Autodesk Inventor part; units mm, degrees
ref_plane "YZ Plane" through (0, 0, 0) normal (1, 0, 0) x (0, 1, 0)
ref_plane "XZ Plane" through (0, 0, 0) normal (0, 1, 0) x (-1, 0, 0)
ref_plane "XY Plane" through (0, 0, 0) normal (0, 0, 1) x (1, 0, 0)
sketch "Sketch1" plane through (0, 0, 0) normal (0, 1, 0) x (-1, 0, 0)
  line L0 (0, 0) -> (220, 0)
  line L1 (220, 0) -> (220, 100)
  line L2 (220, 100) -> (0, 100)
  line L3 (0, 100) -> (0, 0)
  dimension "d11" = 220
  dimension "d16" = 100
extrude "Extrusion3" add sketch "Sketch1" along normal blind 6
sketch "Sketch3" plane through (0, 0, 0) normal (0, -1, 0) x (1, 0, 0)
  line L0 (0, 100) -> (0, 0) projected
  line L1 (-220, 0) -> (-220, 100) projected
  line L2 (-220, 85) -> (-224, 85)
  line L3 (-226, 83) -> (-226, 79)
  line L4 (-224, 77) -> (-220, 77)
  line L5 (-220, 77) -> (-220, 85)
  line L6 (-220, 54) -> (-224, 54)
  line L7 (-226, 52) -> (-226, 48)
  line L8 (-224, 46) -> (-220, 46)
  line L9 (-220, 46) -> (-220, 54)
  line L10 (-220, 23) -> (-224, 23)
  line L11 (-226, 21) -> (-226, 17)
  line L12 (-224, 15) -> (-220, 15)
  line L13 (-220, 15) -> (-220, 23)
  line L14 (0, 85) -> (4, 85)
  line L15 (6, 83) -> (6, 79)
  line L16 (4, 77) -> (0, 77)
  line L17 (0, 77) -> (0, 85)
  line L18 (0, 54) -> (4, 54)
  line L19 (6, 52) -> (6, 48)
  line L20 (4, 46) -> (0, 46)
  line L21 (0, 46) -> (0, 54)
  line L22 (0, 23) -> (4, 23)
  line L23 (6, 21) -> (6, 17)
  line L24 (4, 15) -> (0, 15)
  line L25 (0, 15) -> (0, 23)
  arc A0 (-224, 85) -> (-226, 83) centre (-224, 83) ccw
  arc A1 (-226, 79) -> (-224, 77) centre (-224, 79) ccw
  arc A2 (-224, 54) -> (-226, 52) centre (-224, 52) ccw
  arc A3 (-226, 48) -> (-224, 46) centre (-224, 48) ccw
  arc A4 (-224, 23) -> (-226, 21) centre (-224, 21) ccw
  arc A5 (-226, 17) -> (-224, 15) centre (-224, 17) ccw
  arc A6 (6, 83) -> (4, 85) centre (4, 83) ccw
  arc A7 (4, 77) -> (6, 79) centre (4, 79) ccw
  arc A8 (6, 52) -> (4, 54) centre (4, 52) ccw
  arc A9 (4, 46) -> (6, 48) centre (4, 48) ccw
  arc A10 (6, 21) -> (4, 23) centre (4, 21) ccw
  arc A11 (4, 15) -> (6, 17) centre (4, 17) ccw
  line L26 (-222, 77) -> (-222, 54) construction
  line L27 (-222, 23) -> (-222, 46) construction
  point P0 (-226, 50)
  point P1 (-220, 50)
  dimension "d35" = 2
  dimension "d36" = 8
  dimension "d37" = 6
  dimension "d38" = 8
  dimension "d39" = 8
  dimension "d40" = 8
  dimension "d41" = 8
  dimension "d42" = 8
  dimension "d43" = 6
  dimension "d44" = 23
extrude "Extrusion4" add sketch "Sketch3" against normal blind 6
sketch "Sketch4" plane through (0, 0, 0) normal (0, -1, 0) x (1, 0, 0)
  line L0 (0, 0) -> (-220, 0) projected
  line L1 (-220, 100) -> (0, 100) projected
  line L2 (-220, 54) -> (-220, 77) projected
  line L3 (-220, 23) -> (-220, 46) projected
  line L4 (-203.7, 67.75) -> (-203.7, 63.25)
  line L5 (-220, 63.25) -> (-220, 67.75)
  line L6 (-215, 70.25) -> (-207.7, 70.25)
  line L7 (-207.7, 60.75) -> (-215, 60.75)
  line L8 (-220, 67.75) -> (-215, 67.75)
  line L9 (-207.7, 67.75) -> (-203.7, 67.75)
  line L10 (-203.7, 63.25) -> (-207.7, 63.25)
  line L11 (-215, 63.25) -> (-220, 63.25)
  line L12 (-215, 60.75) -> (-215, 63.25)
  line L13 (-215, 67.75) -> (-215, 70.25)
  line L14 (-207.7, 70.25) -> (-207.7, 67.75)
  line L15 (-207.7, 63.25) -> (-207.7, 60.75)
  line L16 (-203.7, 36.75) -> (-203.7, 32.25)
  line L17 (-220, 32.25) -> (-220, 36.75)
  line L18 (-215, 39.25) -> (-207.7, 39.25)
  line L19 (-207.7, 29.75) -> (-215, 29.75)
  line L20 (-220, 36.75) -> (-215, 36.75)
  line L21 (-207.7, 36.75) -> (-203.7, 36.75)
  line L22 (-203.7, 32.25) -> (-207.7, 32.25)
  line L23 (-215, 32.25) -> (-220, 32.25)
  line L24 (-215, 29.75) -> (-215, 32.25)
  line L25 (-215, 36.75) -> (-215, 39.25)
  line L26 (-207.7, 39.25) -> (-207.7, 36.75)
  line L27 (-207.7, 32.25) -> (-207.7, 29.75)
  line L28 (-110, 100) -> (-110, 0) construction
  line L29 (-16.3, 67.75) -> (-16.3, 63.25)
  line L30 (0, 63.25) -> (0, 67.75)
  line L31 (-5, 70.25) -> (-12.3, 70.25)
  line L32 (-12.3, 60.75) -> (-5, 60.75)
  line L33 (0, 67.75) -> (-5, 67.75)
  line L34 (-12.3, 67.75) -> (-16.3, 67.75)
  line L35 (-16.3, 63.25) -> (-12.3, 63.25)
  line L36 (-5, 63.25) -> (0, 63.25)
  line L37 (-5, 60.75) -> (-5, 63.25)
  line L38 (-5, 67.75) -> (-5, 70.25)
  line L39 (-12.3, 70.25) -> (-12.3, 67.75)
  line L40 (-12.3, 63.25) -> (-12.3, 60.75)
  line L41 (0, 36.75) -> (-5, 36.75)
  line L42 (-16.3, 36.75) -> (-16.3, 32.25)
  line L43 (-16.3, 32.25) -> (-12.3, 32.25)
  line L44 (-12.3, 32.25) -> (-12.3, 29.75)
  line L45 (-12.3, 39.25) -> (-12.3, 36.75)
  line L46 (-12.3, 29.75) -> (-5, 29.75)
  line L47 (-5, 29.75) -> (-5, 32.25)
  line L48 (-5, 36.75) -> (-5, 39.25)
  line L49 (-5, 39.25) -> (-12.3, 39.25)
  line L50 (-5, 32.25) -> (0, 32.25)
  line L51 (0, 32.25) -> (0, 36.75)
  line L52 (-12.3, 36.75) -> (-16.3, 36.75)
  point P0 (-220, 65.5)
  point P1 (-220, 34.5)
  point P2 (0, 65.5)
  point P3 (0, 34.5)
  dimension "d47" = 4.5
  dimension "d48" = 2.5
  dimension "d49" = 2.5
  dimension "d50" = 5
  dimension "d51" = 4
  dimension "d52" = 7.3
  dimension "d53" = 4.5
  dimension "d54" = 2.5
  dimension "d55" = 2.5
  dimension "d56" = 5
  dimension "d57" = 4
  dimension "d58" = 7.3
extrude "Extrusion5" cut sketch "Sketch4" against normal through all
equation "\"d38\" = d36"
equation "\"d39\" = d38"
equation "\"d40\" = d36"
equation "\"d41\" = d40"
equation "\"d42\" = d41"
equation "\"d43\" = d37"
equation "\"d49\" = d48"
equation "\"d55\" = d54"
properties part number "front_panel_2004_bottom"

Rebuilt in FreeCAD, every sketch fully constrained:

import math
import FreeCAD as App
import Part
import Sketcher

V = App.Vector
Q = App.Units.Quantity


def add_polygon(sketch, points):
    """Adds a closed chain of lines whose ends are joined by coincident constraints."""
    first, n = sketch.GeometryCount, len(points)
    for a, b in zip(points, points[1:] + points[:1]):
        sketch.addGeometry(Part.LineSegment(App.Vector(*a, 0), App.Vector(*b, 0)), False)
    for i in range(n):
        sketch.addConstraint(Sketcher.Constraint("Coincident", first + i, 2, first + (i + 1) % n, 1))

doc = App.newDocument("Part")
body = doc.addObject("PartDesign::Body", "Body")

sketch1 = doc.addObject("Sketcher::SketchObject", "Sketch")
body.addObject(sketch1)
sketch1.AttachmentSupport = (doc.XZ_Plane, [""])
sketch1.MapMode = "FlatFace"
add_polygon(sketch1, [(0, 100), (0, 0), (-220, 0), (-220, 100)])
sketch1.addConstraint(Sketcher.Constraint("Vertical", 0))
sketch1.addConstraint(Sketcher.Constraint("Horizontal", 1))
sketch1.addConstraint(Sketcher.Constraint("Vertical", 2))
sketch1.addConstraint(Sketcher.Constraint("Horizontal", 3))
sketch1.addConstraint(Sketcher.Constraint("Coincident", 0, 2, -1, 1))
sketch1.addConstraint(Sketcher.Constraint("DistanceX", 1, 2, 1, 1, Q("220 mm")))
sketch1.addConstraint(Sketcher.Constraint("DistanceY", 0, 2, 0, 1, Q("100 mm")))
pad1 = doc.addObject("PartDesign::Pad", "Pad")
body.addObject(pad1)
pad1.Profile = sketch1
pad1.Length = 6
pad1.Reversed = True

sketch2 = doc.addObject("Sketcher::SketchObject", "Sketch001")
body.addObject(sketch2)
sketch2.AttachmentSupport = (doc.XZ_Plane, [""])
sketch2.MapMode = "FlatFace"
sketch2.addGeometry(Part.LineSegment(V(4, 85, 0), V(0, 85, 0)), False)
sketch2.addGeometry(Part.LineSegment(V(0, 85, 0), V(0, 77, 0)), False)
sketch2.addGeometry(Part.LineSegment(V(0, 77, 0), V(4, 77, 0)), False)
sketch2.addGeometry(Part.ArcOfCircle(Part.Circle(V(4, 79, 0), V(0, 0, 1), 2), math.radians(-90), math.radians(0)), False)
sketch2.addGeometry(Part.LineSegment(V(6, 79, 0), V(6, 83, 0)), False)
sketch2.addGeometry(Part.ArcOfCircle(Part.Circle(V(4, 83, 0), V(0, 0, 1), 2), math.radians(0), math.radians(90)), False)
sketch2.addGeometry(Part.LineSegment(V(4, 23, 0), V(0, 23, 0)), False)
sketch2.addGeometry(Part.LineSegment(V(0, 23, 0), V(0, 15, 0)), False)
sketch2.addGeometry(Part.LineSegment(V(0, 15, 0), V(4, 15, 0)), False)
sketch2.addGeometry(Part.ArcOfCircle(Part.Circle(V(4, 17, 0), V(0, 0, 1), 2), math.radians(-90), math.radians(0)), False)
sketch2.addGeometry(Part.LineSegment(V(6, 17, 0), V(6, 21, 0)), False)
sketch2.addGeometry(Part.ArcOfCircle(Part.Circle(V(4, 21, 0), V(0, 0, 1), 2), math.radians(0), math.radians(90)), False)
sketch2.addGeometry(Part.LineSegment(V(4, 54, 0), V(0, 54, 0)), False)
sketch2.addGeometry(Part.LineSegment(V(0, 54, 0), V(0, 46, 0)), False)
sketch2.addGeometry(Part.LineSegment(V(0, 46, 0), V(4, 46, 0)), False)
sketch2.addGeometry(Part.ArcOfCircle(Part.Circle(V(4, 48, 0), V(0, 0, 1), 2), math.radians(-90), math.radians(0)), False)
sketch2.addGeometry(Part.LineSegment(V(6, 48, 0), V(6, 52, 0)), False)
sketch2.addGeometry(Part.ArcOfCircle(Part.Circle(V(4, 52, 0), V(0, 0, 1), 2), math.radians(0), math.radians(90)), False)
sketch2.addGeometry(Part.LineSegment(V(-224, 15, 0), V(-220, 15, 0)), False)
sketch2.addGeometry(Part.LineSegment(V(-220, 15, 0), V(-220, 23, 0)), False)
sketch2.addGeometry(Part.LineSegment(V(-220, 23, 0), V(-224, 23, 0)), False)
sketch2.addGeometry(Part.ArcOfCircle(Part.Circle(V(-224, 21, 0), V(0, 0, 1), 2), math.radians(90), math.radians(180)), False)
sketch2.addGeometry(Part.LineSegment(V(-226, 21, 0), V(-226, 17, 0)), False)
sketch2.addGeometry(Part.ArcOfCircle(Part.Circle(V(-224, 17, 0), V(0, 0, 1), 2), math.radians(180), math.radians(270)), False)
sketch2.addGeometry(Part.LineSegment(V(-224, 77, 0), V(-220, 77, 0)), False)
sketch2.addGeometry(Part.LineSegment(V(-220, 77, 0), V(-220, 85, 0)), False)
sketch2.addGeometry(Part.LineSegment(V(-220, 85, 0), V(-224, 85, 0)), False)
sketch2.addGeometry(Part.ArcOfCircle(Part.Circle(V(-224, 83, 0), V(0, 0, 1), 2), math.radians(90), math.radians(180)), False)
sketch2.addGeometry(Part.LineSegment(V(-226, 83, 0), V(-226, 79, 0)), False)
sketch2.addGeometry(Part.ArcOfCircle(Part.Circle(V(-224, 79, 0), V(0, 0, 1), 2), math.radians(180), math.radians(270)), False)
sketch2.addGeometry(Part.LineSegment(V(-224, 46, 0), V(-220, 46, 0)), False)
sketch2.addGeometry(Part.LineSegment(V(-220, 46, 0), V(-220, 54, 0)), False)
sketch2.addGeometry(Part.LineSegment(V(-220, 54, 0), V(-224, 54, 0)), False)
sketch2.addGeometry(Part.ArcOfCircle(Part.Circle(V(-224, 52, 0), V(0, 0, 1), 2), math.radians(90), math.radians(180)), False)
sketch2.addGeometry(Part.LineSegment(V(-226, 52, 0), V(-226, 48, 0)), False)
sketch2.addGeometry(Part.ArcOfCircle(Part.Circle(V(-224, 48, 0), V(0, 0, 1), 2), math.radians(180), math.radians(270)), False)
sketch2.addConstraint(Sketcher.Constraint("Coincident", 0, 2, 1, 1))
sketch2.addConstraint(Sketcher.Constraint("Coincident", 1, 2, 2, 1))
sketch2.addConstraint(Sketcher.Constraint("Tangent", 2, 2, 3, 1))
sketch2.addConstraint(Sketcher.Constraint("Tangent", 3, 2, 4, 1))
sketch2.addConstraint(Sketcher.Constraint("Tangent", 4, 2, 5, 1))
sketch2.addConstraint(Sketcher.Constraint("Tangent", 5, 2, 0, 1))
sketch2.addConstraint(Sketcher.Constraint("Coincident", 6, 2, 7, 1))
sketch2.addConstraint(Sketcher.Constraint("Coincident", 7, 2, 8, 1))
sketch2.addConstraint(Sketcher.Constraint("Tangent", 8, 2, 9, 1))
sketch2.addConstraint(Sketcher.Constraint("Tangent", 9, 2, 10, 1))
sketch2.addConstraint(Sketcher.Constraint("Tangent", 10, 2, 11, 1))
sketch2.addConstraint(Sketcher.Constraint("Tangent", 11, 2, 6, 1))
sketch2.addConstraint(Sketcher.Constraint("Coincident", 12, 2, 13, 1))
sketch2.addConstraint(Sketcher.Constraint("Coincident", 13, 2, 14, 1))
sketch2.addConstraint(Sketcher.Constraint("Tangent", 14, 2, 15, 1))
sketch2.addConstraint(Sketcher.Constraint("Tangent", 15, 2, 16, 1))
sketch2.addConstraint(Sketcher.Constraint("Tangent", 16, 2, 17, 1))
sketch2.addConstraint(Sketcher.Constraint("Tangent", 17, 2, 12, 1))
sketch2.addConstraint(Sketcher.Constraint("Coincident", 18, 2, 19, 1))
sketch2.addConstraint(Sketcher.Constraint("Coincident", 19, 2, 20, 1))
sketch2.addConstraint(Sketcher.Constraint("Tangent", 20, 2, 21, 1))
sketch2.addConstraint(Sketcher.Constraint("Tangent", 21, 2, 22, 1))
sketch2.addConstraint(Sketcher.Constraint("Tangent", 22, 2, 23, 1))
sketch2.addConstraint(Sketcher.Constraint("Tangent", 23, 2, 18, 1))
sketch2.addConstraint(Sketcher.Constraint("Coincident", 24, 2, 25, 1))
sketch2.addConstraint(Sketcher.Constraint("Coincident", 25, 2, 26, 1))
sketch2.addConstraint(Sketcher.Constraint("Tangent", 26, 2, 27, 1))
sketch2.addConstraint(Sketcher.Constraint("Tangent", 27, 2, 28, 1))
sketch2.addConstraint(Sketcher.Constraint("Tangent", 28, 2, 29, 1))
sketch2.addConstraint(Sketcher.Constraint("Tangent", 29, 2, 24, 1))
sketch2.addConstraint(Sketcher.Constraint("Coincident", 30, 2, 31, 1))
sketch2.addConstraint(Sketcher.Constraint("Coincident", 31, 2, 32, 1))
sketch2.addConstraint(Sketcher.Constraint("Tangent", 32, 2, 33, 1))
sketch2.addConstraint(Sketcher.Constraint("Tangent", 33, 2, 34, 1))
sketch2.addConstraint(Sketcher.Constraint("Tangent", 34, 2, 35, 1))
sketch2.addConstraint(Sketcher.Constraint("Tangent", 35, 2, 30, 1))
sketch2.addConstraint(Sketcher.Constraint("Horizontal", 0))
sketch2.addConstraint(Sketcher.Constraint("Vertical", 1))
sketch2.addConstraint(Sketcher.Constraint("Horizontal", 2))
sketch2.addConstraint(Sketcher.Constraint("Vertical", 4))
sketch2.addConstraint(Sketcher.Constraint("Horizontal", 6))
sketch2.addConstraint(Sketcher.Constraint("Vertical", 7))
sketch2.addConstraint(Sketcher.Constraint("Horizontal", 8))
sketch2.addConstraint(Sketcher.Constraint("Vertical", 10))
sketch2.addConstraint(Sketcher.Constraint("Horizontal", 12))
sketch2.addConstraint(Sketcher.Constraint("Vertical", 13))
sketch2.addConstraint(Sketcher.Constraint("Horizontal", 14))
sketch2.addConstraint(Sketcher.Constraint("Vertical", 16))
sketch2.addConstraint(Sketcher.Constraint("Horizontal", 18))
sketch2.addConstraint(Sketcher.Constraint("Vertical", 19))
sketch2.addConstraint(Sketcher.Constraint("Horizontal", 20))
sketch2.addConstraint(Sketcher.Constraint("Vertical", 22))
sketch2.addConstraint(Sketcher.Constraint("Horizontal", 24))
sketch2.addConstraint(Sketcher.Constraint("Vertical", 25))
sketch2.addConstraint(Sketcher.Constraint("Horizontal", 26))
sketch2.addConstraint(Sketcher.Constraint("Vertical", 28))
sketch2.addConstraint(Sketcher.Constraint("Horizontal", 30))
sketch2.addConstraint(Sketcher.Constraint("Vertical", 31))
sketch2.addConstraint(Sketcher.Constraint("Horizontal", 32))
sketch2.addConstraint(Sketcher.Constraint("Vertical", 34))
sketch2.addConstraint(Sketcher.Constraint("Equal", 3, 5))
sketch2.addConstraint(Sketcher.Constraint("Equal", 5, 9))
sketch2.addConstraint(Sketcher.Constraint("Equal", 9, 11))
sketch2.addConstraint(Sketcher.Constraint("Equal", 11, 15))
sketch2.addConstraint(Sketcher.Constraint("Equal", 15, 17))
sketch2.addConstraint(Sketcher.Constraint("Equal", 17, 21))
sketch2.addConstraint(Sketcher.Constraint("Equal", 21, 23))
sketch2.addConstraint(Sketcher.Constraint("Equal", 23, 27))
sketch2.addConstraint(Sketcher.Constraint("Equal", 27, 29))
sketch2.addConstraint(Sketcher.Constraint("Equal", 29, 33))
sketch2.addConstraint(Sketcher.Constraint("Equal", 33, 35))
sketch2.addConstraint(Sketcher.Constraint("PointOnObject", 0, 2, -2))
sketch2.addConstraint(Sketcher.Constraint("PointOnObject", 6, 2, -2))
sketch2.addConstraint(Sketcher.Constraint("PointOnObject", 12, 2, -2))
sketch2.addConstraint(Sketcher.Constraint("Horizontal", 11, 3, 21, 3))
sketch2.addConstraint(Sketcher.Constraint("Horizontal", 9, 3, 23, 3))
sketch2.addConstraint(Sketcher.Constraint("Horizontal", 5, 3, 27, 3))
sketch2.addConstraint(Sketcher.Constraint("Horizontal", 3, 3, 29, 3))
sketch2.addConstraint(Sketcher.Constraint("Horizontal", 17, 3, 33, 3))
sketch2.addConstraint(Sketcher.Constraint("Horizontal", 15, 3, 35, 3))
sketch2.addConstraint(Sketcher.Constraint("Vertical", 5, 3, 9, 3))
sketch2.addConstraint(Sketcher.Constraint("Vertical", 11, 3, 15, 3))
sketch2.addConstraint(Sketcher.Constraint("Vertical", 23, 3, 27, 3))
sketch2.addConstraint(Sketcher.Constraint("Vertical", 29, 3, 33, 3))
sketch2.addConstraint(Sketcher.Constraint("Vertical", 19, 2, 24, 2))
sketch2.addConstraint(Sketcher.Constraint("Vertical", 25, 2, 30, 2))
sketch2.addConstraint(Sketcher.Constraint("Equal", 14, 18))
sketch2.addConstraint(Sketcher.Constraint("Equal", 32, 4))
sketch2.addConstraint(Sketcher.Constraint("Equal", 1, 7))
sketch2.addConstraint(Sketcher.Constraint("Equal", 7, 13))
sketch2.addConstraint(Sketcher.Constraint("Radius", 3, Q("2 mm")))
sketch2.addConstraint(Sketcher.Constraint("DistanceY", 1, 2, 1, 1, Q("8 mm")))
sketch2.addConstraint(Sketcher.Constraint("DistanceY", -1, 1, 6, 2, Q("23 mm")))
sketch2.addConstraint(Sketcher.Constraint("DistanceY", 12, 2, 1, 2, Q("23 mm")))
sketch2.addConstraint(Sketcher.Constraint("DistanceY", 6, 2, 13, 2, Q("23 mm")))
sketch2.addConstraint(Sketcher.Constraint("DistanceX", 21, 3, -1, 1, Q("224 mm")))
pad2 = doc.addObject("PartDesign::Pad", "Pad001")
body.addObject(pad2)
pad2.Profile = sketch2
pad2.Length = 6
pad2.Reversed = True

sketch3 = doc.addObject("Sketcher::SketchObject", "Sketch002")
body.addObject(sketch3)
sketch3.AttachmentSupport = (doc.XZ_Plane, [""])
sketch3.MapMode = "FlatFace"
add_polygon(sketch3, [(-220, 67.8), (-220, 63.2), (-215, 63.2), (-215, 60.8), (-207.7, 60.8), (-207.7, 63.2), (-203.7, 63.2), (-203.7, 67.8), (-207.7, 67.8), (-207.7, 70.2), (-215, 70.2), (-215, 67.8)])
add_polygon(sketch3, [(-220, 36.8), (-220, 32.2), (-215, 32.2), (-215, 29.8), (-207.7, 29.8), (-207.7, 32.2), (-203.7, 32.2), (-203.7, 36.8), (-207.7, 36.8), (-207.7, 39.2), (-215, 39.2), (-215, 36.8)])
add_polygon(sketch3, [(-12.3, 67.8), (-16.3, 67.8), (-16.3, 63.2), (-12.3, 63.2), (-12.3, 60.8), (-5, 60.8), (-5, 63.2), (0, 63.2), (0, 67.8), (-5, 67.8), (-5, 70.2), (-12.3, 70.2)])
add_polygon(sketch3, [(0, 32.2), (0, 36.8), (-5, 36.8), (-5, 39.2), (-12.3, 39.2), (-12.3, 36.8), (-16.3, 36.8), (-16.3, 32.2), (-12.3, 32.2), (-12.3, 29.8), (-5, 29.8), (-5, 32.2)])
sketch3.addConstraint(Sketcher.Constraint("Vertical", 0))
sketch3.addConstraint(Sketcher.Constraint("Horizontal", 1))
sketch3.addConstraint(Sketcher.Constraint("Vertical", 2))
sketch3.addConstraint(Sketcher.Constraint("Horizontal", 3))
sketch3.addConstraint(Sketcher.Constraint("Vertical", 4))
sketch3.addConstraint(Sketcher.Constraint("Horizontal", 5))
sketch3.addConstraint(Sketcher.Constraint("Vertical", 6))
sketch3.addConstraint(Sketcher.Constraint("Horizontal", 7))
sketch3.addConstraint(Sketcher.Constraint("Vertical", 8))
sketch3.addConstraint(Sketcher.Constraint("Horizontal", 9))
sketch3.addConstraint(Sketcher.Constraint("Vertical", 10))
sketch3.addConstraint(Sketcher.Constraint("Horizontal", 11))
sketch3.addConstraint(Sketcher.Constraint("Vertical", 12))
sketch3.addConstraint(Sketcher.Constraint("Horizontal", 13))
sketch3.addConstraint(Sketcher.Constraint("Vertical", 14))
sketch3.addConstraint(Sketcher.Constraint("Horizontal", 15))
sketch3.addConstraint(Sketcher.Constraint("Vertical", 16))
sketch3.addConstraint(Sketcher.Constraint("Horizontal", 17))
sketch3.addConstraint(Sketcher.Constraint("Vertical", 18))
sketch3.addConstraint(Sketcher.Constraint("Horizontal", 19))
sketch3.addConstraint(Sketcher.Constraint("Vertical", 20))
sketch3.addConstraint(Sketcher.Constraint("Horizontal", 21))
sketch3.addConstraint(Sketcher.Constraint("Vertical", 22))
sketch3.addConstraint(Sketcher.Constraint("Horizontal", 23))
sketch3.addConstraint(Sketcher.Constraint("Horizontal", 24))
sketch3.addConstraint(Sketcher.Constraint("Vertical", 25))
sketch3.addConstraint(Sketcher.Constraint("Horizontal", 26))
sketch3.addConstraint(Sketcher.Constraint("Vertical", 27))
sketch3.addConstraint(Sketcher.Constraint("Horizontal", 28))
sketch3.addConstraint(Sketcher.Constraint("Vertical", 29))
sketch3.addConstraint(Sketcher.Constraint("Horizontal", 30))
sketch3.addConstraint(Sketcher.Constraint("Vertical", 31))
sketch3.addConstraint(Sketcher.Constraint("Horizontal", 32))
sketch3.addConstraint(Sketcher.Constraint("Vertical", 33))
sketch3.addConstraint(Sketcher.Constraint("Horizontal", 34))
sketch3.addConstraint(Sketcher.Constraint("Vertical", 35))
sketch3.addConstraint(Sketcher.Constraint("Vertical", 36))
sketch3.addConstraint(Sketcher.Constraint("Horizontal", 37))
sketch3.addConstraint(Sketcher.Constraint("Vertical", 38))
sketch3.addConstraint(Sketcher.Constraint("Horizontal", 39))
sketch3.addConstraint(Sketcher.Constraint("Vertical", 40))
sketch3.addConstraint(Sketcher.Constraint("Horizontal", 41))
sketch3.addConstraint(Sketcher.Constraint("Vertical", 42))
sketch3.addConstraint(Sketcher.Constraint("Horizontal", 43))
sketch3.addConstraint(Sketcher.Constraint("Vertical", 44))
sketch3.addConstraint(Sketcher.Constraint("Horizontal", 45))
sketch3.addConstraint(Sketcher.Constraint("Vertical", 46))
sketch3.addConstraint(Sketcher.Constraint("Horizontal", 47))
sketch3.addConstraint(Sketcher.Constraint("PointOnObject", 30, 2, -2))
sketch3.addConstraint(Sketcher.Constraint("PointOnObject", 36, 2, -2))
sketch3.addConstraint(Sketcher.Constraint("Horizontal", 1, 2, 4, 2))
sketch3.addConstraint(Sketcher.Constraint("Horizontal", 7, 2, 10, 2))
sketch3.addConstraint(Sketcher.Constraint("Horizontal", 13, 2, 16, 2))
sketch3.addConstraint(Sketcher.Constraint("Horizontal", 19, 2, 22, 2))
sketch3.addConstraint(Sketcher.Constraint("Horizontal", 11, 2, 24, 2))
sketch3.addConstraint(Sketcher.Constraint("Horizontal", 5, 2, 25, 2))
sketch3.addConstraint(Sketcher.Constraint("Horizontal", 3, 2, 27, 2))
sketch3.addConstraint(Sketcher.Constraint("Horizontal", 26, 2, 29, 2))
sketch3.addConstraint(Sketcher.Constraint("Horizontal", 24, 2, 31, 2))
sketch3.addConstraint(Sketcher.Constraint("Horizontal", 9, 2, 33, 2))
sketch3.addConstraint(Sketcher.Constraint("Horizontal", 23, 2, 36, 2))
sketch3.addConstraint(Sketcher.Constraint("Horizontal", 21, 2, 38, 2))
sketch3.addConstraint(Sketcher.Constraint("Horizontal", 37, 2, 40, 2))
sketch3.addConstraint(Sketcher.Constraint("Horizontal", 17, 2, 42, 2))
sketch3.addConstraint(Sketcher.Constraint("Horizontal", 15, 2, 44, 2))
sketch3.addConstraint(Sketcher.Constraint("Horizontal", 43, 2, 46, 2))
sketch3.addConstraint(Sketcher.Constraint("Vertical", 4, 2, 7, 2))
sketch3.addConstraint(Sketcher.Constraint("Vertical", 2, 2, 9, 2))
sketch3.addConstraint(Sketcher.Constraint("Vertical", 11, 2, 12, 2))
sketch3.addConstraint(Sketcher.Constraint("Vertical", 10, 2, 13, 2))
sketch3.addConstraint(Sketcher.Constraint("Vertical", 8, 2, 15, 2))
sketch3.addConstraint(Sketcher.Constraint("Vertical", 6, 2, 17, 2))
sketch3.addConstraint(Sketcher.Constraint("Vertical", 16, 2, 19, 2))
sketch3.addConstraint(Sketcher.Constraint("Vertical", 14, 2, 21, 2))
sketch3.addConstraint(Sketcher.Constraint("Vertical", 29, 2, 32, 2))
sketch3.addConstraint(Sketcher.Constraint("Vertical", 27, 2, 34, 2))
sketch3.addConstraint(Sketcher.Constraint("Vertical", 33, 2, 37, 2))
sketch3.addConstraint(Sketcher.Constraint("Vertical", 35, 2, 39, 2))
sketch3.addConstraint(Sketcher.Constraint("Vertical", 25, 2, 41, 2))
sketch3.addConstraint(Sketcher.Constraint("Vertical", 40, 2, 43, 2))
sketch3.addConstraint(Sketcher.Constraint("Vertical", 38, 2, 45, 2))
sketch3.addConstraint(Sketcher.Constraint("Equal", 19, 24))
sketch3.addConstraint(Sketcher.Constraint("Equal", 21, 28))
sketch3.addConstraint(Sketcher.Constraint("Equal", 23, 30))
sketch3.addConstraint(Sketcher.Constraint("Equal", 4, 8))
sketch3.addConstraint(Sketcher.Constraint("Equal", 6, 12))
sketch3.addConstraint(Sketcher.Constraint("Equal", 10, 14))
sketch3.addConstraint(Sketcher.Constraint("Equal", 16, 20))
sketch3.addConstraint(Sketcher.Constraint("DistanceX", 1, 1, 1, 2, Q("5 mm")))
sketch3.addConstraint(Sketcher.Constraint("DistanceX", 5, 1, 5, 2, Q("4 mm")))
sketch3.addConstraint(Sketcher.Constraint("DistanceX", 3, 1, 3, 2, Q("7.3 mm")))
sketch3.addConstraint(Sketcher.Constraint("DistanceY", 0, 2, 0, 1, Q("4.5 mm")))
sketch3.addConstraint(Sketcher.Constraint("DistanceY", 2, 2, 2, 1, Q("2.5 mm")))
sketch3.addConstraint(Sketcher.Constraint("DistanceX", 0, 2, -1, 1, Q("220 mm")))
sketch3.addConstraint(Sketcher.Constraint("DistanceY", 12, 2, 0, 2, Q("31 mm")))
sketch3.addConstraint(Sketcher.Constraint("DistanceY", -1, 1, 0, 2, Q("63.25 mm")))
pocket1 = doc.addObject("PartDesign::Pocket", "Pocket")
body.addObject(pocket1)
pocket1.Profile = sketch3
pocket1.Type = "ThroughAll"

doc.recompute()
